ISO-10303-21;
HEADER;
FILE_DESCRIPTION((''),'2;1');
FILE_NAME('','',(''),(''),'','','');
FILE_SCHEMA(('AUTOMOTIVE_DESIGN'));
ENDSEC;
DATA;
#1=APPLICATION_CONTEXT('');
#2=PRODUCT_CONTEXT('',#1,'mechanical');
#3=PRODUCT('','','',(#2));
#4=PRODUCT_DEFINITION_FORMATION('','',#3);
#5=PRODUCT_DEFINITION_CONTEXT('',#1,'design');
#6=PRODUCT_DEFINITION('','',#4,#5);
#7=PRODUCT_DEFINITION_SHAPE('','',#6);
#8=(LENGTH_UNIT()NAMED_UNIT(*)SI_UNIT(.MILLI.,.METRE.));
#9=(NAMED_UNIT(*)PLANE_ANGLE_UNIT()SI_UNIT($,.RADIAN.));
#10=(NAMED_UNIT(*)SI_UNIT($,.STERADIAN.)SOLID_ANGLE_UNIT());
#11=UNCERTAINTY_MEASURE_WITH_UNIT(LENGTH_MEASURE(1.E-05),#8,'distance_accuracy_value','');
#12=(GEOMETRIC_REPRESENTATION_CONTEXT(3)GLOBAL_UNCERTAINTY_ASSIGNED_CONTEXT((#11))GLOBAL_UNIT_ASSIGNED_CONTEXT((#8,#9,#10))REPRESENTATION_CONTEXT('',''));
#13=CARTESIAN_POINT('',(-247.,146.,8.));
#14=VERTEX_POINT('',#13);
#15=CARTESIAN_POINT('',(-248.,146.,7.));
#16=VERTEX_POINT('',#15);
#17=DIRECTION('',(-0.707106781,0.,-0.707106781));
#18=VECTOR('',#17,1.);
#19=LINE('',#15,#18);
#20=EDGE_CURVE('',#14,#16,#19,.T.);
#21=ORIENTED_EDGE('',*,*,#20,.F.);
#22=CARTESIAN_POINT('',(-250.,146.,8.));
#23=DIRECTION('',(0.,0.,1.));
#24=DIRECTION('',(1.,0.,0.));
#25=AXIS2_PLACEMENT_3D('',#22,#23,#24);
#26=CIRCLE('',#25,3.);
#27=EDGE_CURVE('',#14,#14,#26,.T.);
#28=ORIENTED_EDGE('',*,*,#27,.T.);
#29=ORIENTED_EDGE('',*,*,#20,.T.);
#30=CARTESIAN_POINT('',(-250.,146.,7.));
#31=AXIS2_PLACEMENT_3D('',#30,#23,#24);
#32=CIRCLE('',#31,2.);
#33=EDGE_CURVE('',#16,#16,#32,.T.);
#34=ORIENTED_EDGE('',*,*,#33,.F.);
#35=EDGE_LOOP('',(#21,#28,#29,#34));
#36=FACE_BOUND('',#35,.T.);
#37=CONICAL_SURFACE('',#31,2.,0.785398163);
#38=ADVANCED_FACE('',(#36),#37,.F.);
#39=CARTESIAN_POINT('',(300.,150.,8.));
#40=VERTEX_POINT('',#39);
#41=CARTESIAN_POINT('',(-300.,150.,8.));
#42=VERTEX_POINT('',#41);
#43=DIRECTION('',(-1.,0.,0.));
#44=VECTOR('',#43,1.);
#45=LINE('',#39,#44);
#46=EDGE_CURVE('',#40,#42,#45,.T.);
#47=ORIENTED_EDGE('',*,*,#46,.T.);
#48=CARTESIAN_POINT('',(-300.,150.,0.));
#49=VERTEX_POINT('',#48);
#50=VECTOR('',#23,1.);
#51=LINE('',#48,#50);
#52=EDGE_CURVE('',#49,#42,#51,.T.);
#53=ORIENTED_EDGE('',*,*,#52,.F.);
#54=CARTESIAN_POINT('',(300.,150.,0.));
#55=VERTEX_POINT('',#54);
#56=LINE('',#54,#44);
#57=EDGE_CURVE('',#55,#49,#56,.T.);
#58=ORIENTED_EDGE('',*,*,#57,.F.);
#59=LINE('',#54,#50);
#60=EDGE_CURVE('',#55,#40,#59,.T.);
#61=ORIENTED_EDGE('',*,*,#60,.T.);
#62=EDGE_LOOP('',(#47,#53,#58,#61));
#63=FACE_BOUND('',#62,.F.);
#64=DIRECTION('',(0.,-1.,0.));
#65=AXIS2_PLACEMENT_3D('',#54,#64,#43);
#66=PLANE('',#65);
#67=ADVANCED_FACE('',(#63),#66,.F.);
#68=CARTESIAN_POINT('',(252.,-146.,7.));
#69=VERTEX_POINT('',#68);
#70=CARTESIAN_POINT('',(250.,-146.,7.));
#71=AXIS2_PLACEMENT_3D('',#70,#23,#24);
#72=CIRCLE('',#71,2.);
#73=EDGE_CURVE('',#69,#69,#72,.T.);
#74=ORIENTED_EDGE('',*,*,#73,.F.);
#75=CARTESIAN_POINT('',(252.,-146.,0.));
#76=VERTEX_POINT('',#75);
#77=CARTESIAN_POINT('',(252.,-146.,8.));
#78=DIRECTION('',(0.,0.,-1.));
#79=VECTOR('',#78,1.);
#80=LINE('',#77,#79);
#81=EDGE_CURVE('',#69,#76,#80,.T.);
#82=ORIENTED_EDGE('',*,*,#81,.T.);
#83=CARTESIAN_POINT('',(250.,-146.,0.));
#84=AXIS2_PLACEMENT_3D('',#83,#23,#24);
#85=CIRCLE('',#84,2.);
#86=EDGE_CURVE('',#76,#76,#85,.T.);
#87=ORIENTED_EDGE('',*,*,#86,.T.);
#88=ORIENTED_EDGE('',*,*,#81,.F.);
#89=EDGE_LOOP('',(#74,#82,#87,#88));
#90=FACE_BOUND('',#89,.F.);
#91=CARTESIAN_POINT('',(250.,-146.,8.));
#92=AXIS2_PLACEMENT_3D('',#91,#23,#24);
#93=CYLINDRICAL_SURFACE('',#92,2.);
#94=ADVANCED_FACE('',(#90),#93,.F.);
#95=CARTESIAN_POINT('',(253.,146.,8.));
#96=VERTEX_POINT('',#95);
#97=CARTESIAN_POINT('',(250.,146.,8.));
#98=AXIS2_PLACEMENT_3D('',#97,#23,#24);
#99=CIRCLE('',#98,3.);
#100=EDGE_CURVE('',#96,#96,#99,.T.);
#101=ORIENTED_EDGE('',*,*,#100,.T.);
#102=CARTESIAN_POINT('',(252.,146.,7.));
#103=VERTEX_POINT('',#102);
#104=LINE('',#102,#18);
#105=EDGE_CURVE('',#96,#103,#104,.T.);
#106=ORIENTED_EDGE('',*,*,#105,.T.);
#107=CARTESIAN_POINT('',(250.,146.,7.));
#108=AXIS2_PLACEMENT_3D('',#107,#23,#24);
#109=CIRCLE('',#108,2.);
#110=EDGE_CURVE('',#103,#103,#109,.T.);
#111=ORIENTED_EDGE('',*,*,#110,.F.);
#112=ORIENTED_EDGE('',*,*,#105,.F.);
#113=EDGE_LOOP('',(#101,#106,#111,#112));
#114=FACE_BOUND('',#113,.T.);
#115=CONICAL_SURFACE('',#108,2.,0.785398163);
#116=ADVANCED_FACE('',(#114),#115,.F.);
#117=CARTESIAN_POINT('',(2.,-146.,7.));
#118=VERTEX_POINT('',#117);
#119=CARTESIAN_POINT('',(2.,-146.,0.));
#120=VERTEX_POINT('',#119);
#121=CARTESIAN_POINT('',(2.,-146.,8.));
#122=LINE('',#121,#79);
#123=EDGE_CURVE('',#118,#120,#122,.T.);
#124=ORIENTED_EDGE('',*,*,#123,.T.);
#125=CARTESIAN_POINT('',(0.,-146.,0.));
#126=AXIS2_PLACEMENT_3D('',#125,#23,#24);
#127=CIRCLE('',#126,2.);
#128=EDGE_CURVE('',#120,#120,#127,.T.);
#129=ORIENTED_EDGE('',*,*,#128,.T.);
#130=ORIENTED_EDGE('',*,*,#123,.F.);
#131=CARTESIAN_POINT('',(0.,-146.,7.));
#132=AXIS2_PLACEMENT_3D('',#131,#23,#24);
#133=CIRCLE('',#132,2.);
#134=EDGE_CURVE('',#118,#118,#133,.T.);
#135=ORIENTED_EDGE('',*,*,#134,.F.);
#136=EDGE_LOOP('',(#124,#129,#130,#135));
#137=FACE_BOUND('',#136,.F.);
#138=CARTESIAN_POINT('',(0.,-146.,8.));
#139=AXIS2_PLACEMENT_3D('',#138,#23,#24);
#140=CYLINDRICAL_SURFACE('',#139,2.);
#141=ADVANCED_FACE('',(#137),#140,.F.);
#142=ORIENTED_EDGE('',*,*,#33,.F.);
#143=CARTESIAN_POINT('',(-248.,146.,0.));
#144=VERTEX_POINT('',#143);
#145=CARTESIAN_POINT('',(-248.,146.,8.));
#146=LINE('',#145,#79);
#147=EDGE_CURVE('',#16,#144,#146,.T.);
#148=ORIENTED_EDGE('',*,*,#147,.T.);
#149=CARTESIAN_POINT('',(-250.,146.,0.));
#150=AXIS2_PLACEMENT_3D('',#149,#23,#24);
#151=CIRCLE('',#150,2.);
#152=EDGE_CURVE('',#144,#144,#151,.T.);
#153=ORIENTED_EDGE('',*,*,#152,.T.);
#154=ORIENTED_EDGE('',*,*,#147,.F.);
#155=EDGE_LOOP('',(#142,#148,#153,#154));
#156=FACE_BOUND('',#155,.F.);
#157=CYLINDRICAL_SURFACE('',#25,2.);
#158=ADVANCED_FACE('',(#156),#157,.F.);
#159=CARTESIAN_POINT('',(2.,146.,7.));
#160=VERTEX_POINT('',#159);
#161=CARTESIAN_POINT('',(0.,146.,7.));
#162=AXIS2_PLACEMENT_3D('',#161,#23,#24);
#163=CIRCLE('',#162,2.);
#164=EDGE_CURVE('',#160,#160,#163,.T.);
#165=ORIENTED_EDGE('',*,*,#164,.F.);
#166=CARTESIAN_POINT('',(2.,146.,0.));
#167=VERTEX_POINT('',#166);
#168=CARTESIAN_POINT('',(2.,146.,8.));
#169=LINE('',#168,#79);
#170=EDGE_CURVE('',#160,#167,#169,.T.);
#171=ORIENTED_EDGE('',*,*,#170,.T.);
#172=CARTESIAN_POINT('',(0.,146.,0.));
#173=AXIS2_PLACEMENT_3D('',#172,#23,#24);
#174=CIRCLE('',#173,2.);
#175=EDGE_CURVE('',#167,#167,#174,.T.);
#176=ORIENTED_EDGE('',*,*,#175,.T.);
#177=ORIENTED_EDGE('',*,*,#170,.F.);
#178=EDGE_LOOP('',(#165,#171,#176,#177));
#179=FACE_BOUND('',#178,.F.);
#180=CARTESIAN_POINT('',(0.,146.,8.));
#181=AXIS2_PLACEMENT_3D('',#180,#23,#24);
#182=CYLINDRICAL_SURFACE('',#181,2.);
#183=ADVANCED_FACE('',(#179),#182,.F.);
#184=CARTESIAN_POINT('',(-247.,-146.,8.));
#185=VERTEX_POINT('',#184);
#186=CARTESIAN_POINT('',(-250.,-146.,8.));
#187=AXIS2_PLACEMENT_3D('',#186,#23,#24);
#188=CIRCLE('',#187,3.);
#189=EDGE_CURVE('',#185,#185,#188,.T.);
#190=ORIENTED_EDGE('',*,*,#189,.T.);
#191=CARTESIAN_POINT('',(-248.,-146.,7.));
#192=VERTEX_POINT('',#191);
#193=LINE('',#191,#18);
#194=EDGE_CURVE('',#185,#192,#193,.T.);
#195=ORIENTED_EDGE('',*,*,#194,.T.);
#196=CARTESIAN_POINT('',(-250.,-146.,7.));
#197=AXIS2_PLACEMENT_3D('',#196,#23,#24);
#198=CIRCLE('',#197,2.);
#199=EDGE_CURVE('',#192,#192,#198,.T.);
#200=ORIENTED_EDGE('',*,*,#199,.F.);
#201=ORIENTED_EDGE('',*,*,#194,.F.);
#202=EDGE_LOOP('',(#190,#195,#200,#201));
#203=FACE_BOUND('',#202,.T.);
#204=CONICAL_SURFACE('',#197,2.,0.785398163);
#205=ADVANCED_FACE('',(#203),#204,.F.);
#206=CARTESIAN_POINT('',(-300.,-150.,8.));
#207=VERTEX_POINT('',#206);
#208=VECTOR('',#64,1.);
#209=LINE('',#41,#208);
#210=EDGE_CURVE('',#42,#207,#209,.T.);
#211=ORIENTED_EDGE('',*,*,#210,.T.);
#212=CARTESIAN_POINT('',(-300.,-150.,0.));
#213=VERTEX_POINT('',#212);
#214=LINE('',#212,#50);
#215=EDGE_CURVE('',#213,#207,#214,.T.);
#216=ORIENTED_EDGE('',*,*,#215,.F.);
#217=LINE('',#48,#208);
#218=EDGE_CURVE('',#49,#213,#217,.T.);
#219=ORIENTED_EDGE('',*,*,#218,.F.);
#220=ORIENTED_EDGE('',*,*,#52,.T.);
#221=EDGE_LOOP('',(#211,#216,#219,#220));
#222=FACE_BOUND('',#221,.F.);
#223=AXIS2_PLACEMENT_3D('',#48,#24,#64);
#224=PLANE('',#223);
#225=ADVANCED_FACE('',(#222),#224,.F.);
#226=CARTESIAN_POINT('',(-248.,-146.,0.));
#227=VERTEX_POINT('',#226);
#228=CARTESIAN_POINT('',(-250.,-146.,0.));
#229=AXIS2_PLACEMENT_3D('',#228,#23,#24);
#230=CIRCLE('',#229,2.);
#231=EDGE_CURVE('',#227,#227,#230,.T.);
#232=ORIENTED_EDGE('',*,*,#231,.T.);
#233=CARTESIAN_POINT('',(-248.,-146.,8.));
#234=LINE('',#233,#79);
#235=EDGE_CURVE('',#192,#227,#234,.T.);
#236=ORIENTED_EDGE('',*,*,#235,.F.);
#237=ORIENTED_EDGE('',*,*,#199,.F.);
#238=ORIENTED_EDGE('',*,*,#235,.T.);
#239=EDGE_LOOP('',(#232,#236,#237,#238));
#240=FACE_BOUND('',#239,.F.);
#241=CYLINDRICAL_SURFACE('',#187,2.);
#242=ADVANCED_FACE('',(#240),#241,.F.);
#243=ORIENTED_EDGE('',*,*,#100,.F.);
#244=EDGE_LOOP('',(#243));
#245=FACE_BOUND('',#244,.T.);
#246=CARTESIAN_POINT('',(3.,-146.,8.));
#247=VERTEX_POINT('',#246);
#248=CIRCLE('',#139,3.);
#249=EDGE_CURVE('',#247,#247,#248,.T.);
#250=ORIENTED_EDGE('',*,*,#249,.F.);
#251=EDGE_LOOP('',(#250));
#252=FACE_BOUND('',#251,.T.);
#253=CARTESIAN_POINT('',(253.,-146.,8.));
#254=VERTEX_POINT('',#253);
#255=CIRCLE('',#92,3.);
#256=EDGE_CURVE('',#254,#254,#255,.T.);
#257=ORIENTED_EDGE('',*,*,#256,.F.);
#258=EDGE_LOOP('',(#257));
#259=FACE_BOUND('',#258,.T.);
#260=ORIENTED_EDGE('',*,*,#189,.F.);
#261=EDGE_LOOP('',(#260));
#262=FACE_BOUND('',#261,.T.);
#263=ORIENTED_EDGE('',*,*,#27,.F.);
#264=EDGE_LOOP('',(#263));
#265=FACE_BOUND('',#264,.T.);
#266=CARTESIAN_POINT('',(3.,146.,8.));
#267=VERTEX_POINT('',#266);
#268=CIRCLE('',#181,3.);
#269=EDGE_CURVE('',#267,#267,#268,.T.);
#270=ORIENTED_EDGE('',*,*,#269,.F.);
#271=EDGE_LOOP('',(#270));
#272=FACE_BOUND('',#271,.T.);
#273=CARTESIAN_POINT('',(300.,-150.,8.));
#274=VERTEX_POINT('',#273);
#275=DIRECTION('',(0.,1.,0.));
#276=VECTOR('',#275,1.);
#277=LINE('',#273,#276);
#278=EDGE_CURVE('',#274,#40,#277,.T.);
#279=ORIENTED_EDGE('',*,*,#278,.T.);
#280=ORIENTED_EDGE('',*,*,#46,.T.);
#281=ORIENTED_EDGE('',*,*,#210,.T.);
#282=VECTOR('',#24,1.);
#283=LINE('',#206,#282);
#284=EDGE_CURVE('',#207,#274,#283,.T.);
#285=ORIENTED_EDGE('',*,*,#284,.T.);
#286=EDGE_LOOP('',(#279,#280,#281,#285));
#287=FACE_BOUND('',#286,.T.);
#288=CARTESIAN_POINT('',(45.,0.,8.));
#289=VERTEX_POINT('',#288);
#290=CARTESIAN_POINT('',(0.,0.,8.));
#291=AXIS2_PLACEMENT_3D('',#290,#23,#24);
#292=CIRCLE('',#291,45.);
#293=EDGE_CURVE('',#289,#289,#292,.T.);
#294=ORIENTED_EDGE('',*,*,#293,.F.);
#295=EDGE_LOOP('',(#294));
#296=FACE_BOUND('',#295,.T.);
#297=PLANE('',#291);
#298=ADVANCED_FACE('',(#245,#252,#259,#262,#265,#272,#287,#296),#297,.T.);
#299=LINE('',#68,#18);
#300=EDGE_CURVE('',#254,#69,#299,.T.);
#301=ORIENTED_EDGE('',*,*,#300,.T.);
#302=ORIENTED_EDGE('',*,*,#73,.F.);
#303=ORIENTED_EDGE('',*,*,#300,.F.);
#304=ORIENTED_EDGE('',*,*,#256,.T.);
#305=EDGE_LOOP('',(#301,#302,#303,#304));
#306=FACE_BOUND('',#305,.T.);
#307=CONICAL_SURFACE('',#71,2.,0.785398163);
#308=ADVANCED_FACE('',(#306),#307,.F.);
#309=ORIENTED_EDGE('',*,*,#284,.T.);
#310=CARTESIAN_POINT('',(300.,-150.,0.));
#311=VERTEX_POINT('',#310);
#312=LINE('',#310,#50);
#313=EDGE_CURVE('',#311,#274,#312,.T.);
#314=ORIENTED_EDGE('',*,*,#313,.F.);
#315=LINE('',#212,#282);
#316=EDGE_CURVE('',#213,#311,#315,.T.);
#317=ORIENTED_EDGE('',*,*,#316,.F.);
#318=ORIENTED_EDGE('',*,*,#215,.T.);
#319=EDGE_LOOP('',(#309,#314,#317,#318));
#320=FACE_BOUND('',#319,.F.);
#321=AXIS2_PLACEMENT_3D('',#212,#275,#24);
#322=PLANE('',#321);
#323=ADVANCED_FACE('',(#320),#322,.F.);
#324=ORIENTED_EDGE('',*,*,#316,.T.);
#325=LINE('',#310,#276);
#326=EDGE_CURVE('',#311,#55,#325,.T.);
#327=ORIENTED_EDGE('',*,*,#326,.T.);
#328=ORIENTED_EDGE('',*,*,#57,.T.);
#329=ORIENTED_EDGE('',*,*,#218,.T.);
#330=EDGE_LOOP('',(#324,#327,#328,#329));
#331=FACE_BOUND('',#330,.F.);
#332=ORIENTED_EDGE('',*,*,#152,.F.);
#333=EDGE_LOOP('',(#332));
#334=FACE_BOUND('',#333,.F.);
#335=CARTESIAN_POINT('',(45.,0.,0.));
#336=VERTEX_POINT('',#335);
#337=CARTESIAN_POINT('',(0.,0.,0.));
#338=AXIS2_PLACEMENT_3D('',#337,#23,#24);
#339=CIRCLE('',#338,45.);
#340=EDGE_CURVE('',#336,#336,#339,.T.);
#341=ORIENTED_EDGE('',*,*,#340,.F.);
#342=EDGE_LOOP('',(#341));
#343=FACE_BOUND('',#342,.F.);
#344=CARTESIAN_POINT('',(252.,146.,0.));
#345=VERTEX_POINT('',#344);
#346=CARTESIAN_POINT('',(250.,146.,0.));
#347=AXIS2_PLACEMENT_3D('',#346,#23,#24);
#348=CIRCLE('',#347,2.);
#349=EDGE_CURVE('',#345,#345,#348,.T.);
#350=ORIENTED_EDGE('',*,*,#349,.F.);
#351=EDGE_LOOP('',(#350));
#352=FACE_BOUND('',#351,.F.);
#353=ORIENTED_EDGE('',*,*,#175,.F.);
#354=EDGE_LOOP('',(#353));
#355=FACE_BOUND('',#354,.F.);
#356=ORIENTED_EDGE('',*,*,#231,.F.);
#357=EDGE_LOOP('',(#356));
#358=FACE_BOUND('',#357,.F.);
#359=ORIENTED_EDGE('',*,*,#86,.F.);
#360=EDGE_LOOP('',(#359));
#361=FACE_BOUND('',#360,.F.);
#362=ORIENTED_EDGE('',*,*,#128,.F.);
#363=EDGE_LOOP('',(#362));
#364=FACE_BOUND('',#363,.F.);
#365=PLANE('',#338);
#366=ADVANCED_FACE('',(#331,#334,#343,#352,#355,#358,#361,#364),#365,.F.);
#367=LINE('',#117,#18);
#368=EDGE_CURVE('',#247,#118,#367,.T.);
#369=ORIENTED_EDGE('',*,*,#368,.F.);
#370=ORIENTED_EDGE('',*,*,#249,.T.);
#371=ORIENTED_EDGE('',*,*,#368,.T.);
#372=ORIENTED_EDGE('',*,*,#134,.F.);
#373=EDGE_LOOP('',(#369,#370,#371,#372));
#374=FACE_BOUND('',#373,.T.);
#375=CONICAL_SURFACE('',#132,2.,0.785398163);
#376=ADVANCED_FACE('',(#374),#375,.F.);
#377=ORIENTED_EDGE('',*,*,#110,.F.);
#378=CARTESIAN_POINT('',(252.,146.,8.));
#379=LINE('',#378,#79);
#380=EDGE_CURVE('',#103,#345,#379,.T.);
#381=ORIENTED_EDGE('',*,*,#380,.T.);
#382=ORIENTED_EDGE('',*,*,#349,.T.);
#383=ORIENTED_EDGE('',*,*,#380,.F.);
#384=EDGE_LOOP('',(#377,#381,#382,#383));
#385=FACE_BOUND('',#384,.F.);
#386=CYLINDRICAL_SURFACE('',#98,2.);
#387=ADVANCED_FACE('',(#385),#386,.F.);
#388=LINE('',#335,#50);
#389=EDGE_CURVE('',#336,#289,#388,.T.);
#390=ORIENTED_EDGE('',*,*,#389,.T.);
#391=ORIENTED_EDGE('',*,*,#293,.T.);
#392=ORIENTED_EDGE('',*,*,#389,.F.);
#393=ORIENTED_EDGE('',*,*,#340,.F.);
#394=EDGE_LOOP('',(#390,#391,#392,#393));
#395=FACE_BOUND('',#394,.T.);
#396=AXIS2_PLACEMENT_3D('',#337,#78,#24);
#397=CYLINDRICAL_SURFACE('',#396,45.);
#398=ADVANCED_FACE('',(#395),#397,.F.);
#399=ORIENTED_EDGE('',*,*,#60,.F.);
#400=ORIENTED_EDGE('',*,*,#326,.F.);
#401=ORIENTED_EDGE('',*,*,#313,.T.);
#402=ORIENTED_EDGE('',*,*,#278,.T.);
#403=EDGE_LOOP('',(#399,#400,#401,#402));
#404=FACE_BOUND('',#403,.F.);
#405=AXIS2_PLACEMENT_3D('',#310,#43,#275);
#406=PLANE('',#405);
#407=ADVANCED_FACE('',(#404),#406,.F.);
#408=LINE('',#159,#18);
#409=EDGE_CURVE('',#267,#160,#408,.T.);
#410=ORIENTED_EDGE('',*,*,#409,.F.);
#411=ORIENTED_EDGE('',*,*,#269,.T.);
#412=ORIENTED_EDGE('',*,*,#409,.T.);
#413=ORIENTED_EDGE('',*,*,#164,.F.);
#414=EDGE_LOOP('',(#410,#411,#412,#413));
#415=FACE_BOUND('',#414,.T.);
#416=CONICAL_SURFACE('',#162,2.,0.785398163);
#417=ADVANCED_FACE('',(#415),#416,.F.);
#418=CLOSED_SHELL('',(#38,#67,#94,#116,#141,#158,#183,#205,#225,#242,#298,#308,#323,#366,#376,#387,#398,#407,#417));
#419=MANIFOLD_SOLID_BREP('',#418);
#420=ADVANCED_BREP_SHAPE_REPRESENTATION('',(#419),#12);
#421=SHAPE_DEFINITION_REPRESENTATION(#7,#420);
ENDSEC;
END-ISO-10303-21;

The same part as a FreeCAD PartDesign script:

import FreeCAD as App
import Part
import Sketcher
from FreeCAD import Vector


def edges_at(feature, points):
    """Names of the edges that pass closest to the given points."""
    edges = feature.Shape.Edges
    near = lambda p: min(range(len(edges)), key=lambda i: edges[i].distToShape(Part.Vertex(*p))[0])
    return sorted({f"Edge{near(p) + 1}" for p in points})

doc = App.newDocument("Part")
params = doc.addObject("Spreadsheet::Sheet", "Params")
for row, (alias, value) in enumerate([
    ("sketch1_diameter", "90 mm"),
    ("sketch1_width", "600 mm"),
    ("sketch1_height", "300 mm"),
    ("pad1_length", "8 mm"),
    ("sketch2_diameter", "4 mm"),
    ("pocket1_length", "10 mm"),
    ("chamfer_size", "1 mm"),
], start=1):
    params.set(f"A{row}", alias)
    params.set(f"B{row}", "=" + value)
    params.setAlias(f"B{row}", alias)

body = doc.addObject("PartDesign::Body", "Body")

# Sketch on XY plane
sketch1 = doc.addObject("Sketcher::SketchObject", "Sketch")
body.addObject(sketch1)
sketch1.AttachmentSupport = (doc.XY_Plane, [""])
sketch1.MapMode = "FlatFace"
sketch1.addGeometry([
    Part.LineSegment(Vector(-300, 150, 0), Vector(-300, -150, 0)),  # 0
    Part.LineSegment(Vector(-300, -150, 0), Vector(300, -150, 0)),  # 1
    Part.LineSegment(Vector(300, -150, 0), Vector(300, 150, 0)),  # 2
    Part.LineSegment(Vector(300, 150, 0), Vector(-300, 150, 0)),  # 3
    Part.Circle(Vector(0, 0, 0), Vector(0, 0, 1), 45),  # 4
], False)
sketch1.addConstraint([
    Sketcher.Constraint("Coincident", 0, 2, 1, 1),
    Sketcher.Constraint("Coincident", 1, 2, 2, 1),
    Sketcher.Constraint("Coincident", 2, 2, 3, 1),
    Sketcher.Constraint("Coincident", 3, 2, 0, 1),
    Sketcher.Constraint("Vertical", 0),
    Sketcher.Constraint("Horizontal", 1),
    Sketcher.Constraint("Vertical", 2),
    Sketcher.Constraint("Horizontal", 3),
    Sketcher.Constraint("Coincident", 4, 3, -1, 1),
    Sketcher.Constraint("Symmetric", 0, 2, 2, 2, -1, 1),
    Sketcher.Constraint("Diameter", 4, 90.0),
    Sketcher.Constraint("DistanceX", 1, 1, 1, 2, 600.0),
    Sketcher.Constraint("DistanceY", 0, 2, 0, 1, 300.0),
])
sketch1.setExpression("Constraints[10]", "Params.sketch1_diameter")
sketch1.setExpression("Constraints[11]", "Params.sketch1_width")
sketch1.setExpression("Constraints[12]", "Params.sketch1_height")
pad1 = doc.addObject("PartDesign::Pad", "Pad")
body.addObject(pad1)
pad1.Profile = sketch1
pad1.setExpression("Length", "Params.pad1_length")

# Sketch on XY plane
sketch2 = doc.addObject("Sketcher::SketchObject", "Sketch001")
body.addObject(sketch2)
sketch2.AttachmentSupport = (doc.XY_Plane, [""])
sketch2.MapMode = "FlatFace"
sketch2.AttachmentOffset = App.Placement(Vector(0, 0, 8), App.Rotation())
sketch2.addGeometry([
    Part.Circle(Vector(-250, 146, 0), Vector(0, 0, 1), 2),  # 0
    Part.Circle(Vector(0, 146, 0), Vector(0, 0, 1), 2),  # 1
    Part.Circle(Vector(250, 146, 0), Vector(0, 0, 1), 2),  # 2
    Part.Circle(Vector(250, -146, 0), Vector(0, 0, 1), 2),  # 3
    Part.Circle(Vector(0, -146, 0), Vector(0, 0, 1), 2),  # 4
    Part.Circle(Vector(-250, -146, 0), Vector(0, 0, 1), 2),  # 5
], False)
sketch2.addConstraint([
    Sketcher.Constraint("Equal", 0, 1),
    Sketcher.Constraint("Equal", 1, 2),
    Sketcher.Constraint("Equal", 2, 3),
    Sketcher.Constraint("Equal", 3, 4),
    Sketcher.Constraint("Equal", 4, 5),
    Sketcher.Constraint("Symmetric", 0, 3, 3, 3, -1, 1),
    Sketcher.Constraint("Symmetric", 1, 3, 4, 3, -1, 1),
    Sketcher.Constraint("Symmetric", 2, 3, 5, 3, -1, 1),
    Sketcher.Constraint("Symmetric", 0, 3, 2, 3, -2),
    Sketcher.Constraint("PointOnObject", 1, 3, -2),
    Sketcher.Constraint("Horizontal", 0, 3, 1, 3),
    Sketcher.Constraint("Diameter", 0, 4.0),
    Sketcher.Constraint("DistanceY", 3, 3, 2, 3, 292.0),
    Sketcher.Constraint("DistanceX", 0, 3, -1, 1, 250.0),
])
sketch2.setExpression("Constraints[11]", "Params.sketch2_diameter")
pocket1 = doc.addObject("PartDesign::Pocket", "Pocket")
body.addObject(pocket1)
pocket1.Profile = sketch2
pocket1.setExpression("Length", "Params.pocket1_length")
doc.recompute()

chamfer = doc.addObject("PartDesign::Chamfer", "Chamfer")
body.addObject(chamfer)
chamfer.Base = (pocket1, edges_at(pocket1, [
    (-252, 146, 8),
    (-2, 146, 8),
    (248, 146, 8),
    (248, -146, 8),
    (-2, -146, 8),
    (-252, -146, 8),
]))
chamfer.setExpression("Size", "Params.chamfer_size")

doc.recompute()
